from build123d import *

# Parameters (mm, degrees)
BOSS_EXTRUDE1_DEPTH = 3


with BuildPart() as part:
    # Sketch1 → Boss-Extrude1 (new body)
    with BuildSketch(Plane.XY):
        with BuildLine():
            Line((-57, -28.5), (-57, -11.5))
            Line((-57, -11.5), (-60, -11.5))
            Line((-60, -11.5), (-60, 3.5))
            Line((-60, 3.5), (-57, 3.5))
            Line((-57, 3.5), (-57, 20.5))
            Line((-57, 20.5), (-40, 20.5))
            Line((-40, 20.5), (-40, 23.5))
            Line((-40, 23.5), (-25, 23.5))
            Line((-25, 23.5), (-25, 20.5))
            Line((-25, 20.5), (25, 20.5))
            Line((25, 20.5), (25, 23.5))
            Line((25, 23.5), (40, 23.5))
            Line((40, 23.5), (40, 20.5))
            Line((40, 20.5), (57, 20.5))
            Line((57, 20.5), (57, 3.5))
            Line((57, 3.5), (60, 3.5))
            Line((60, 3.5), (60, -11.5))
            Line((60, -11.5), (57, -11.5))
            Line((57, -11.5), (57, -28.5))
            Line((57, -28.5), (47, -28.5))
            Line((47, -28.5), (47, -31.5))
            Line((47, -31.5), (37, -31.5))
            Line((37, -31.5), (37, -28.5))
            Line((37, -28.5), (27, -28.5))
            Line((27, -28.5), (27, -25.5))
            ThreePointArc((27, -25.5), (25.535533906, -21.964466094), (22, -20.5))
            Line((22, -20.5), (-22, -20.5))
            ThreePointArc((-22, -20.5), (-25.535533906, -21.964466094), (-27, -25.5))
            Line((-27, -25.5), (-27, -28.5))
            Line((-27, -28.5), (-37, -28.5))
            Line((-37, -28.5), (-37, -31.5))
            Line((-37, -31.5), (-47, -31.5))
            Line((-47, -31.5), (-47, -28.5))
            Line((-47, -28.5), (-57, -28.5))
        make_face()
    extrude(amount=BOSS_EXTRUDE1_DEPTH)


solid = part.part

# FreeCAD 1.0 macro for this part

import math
import FreeCAD as App
import Part
import Sketcher

doc = App.newDocument("Part")
body = doc.addObject("PartDesign::Body", "Body")

# Sketch on XY plane
sketch1 = doc.addObject("Sketcher::SketchObject", "Sketch")
body.addObject(sketch1)
sketch1.AttachmentSupport = (doc.XY_Plane, [""])
sketch1.MapMode = "FlatFace"
sketch1.addGeometry([
    Part.LineSegment(App.Vector(-57, -11.5, 0), App.Vector(-57, -28.5, 0)),  # 0
    Part.LineSegment(App.Vector(-57, -28.5, 0), App.Vector(-47, -28.5, 0)),  # 1
    Part.LineSegment(App.Vector(-47, -28.5, 0), App.Vector(-47, -31.5, 0)),  # 2
    Part.LineSegment(App.Vector(-47, -31.5, 0), App.Vector(-37, -31.5, 0)),  # 3
    Part.LineSegment(App.Vector(-37, -31.5, 0), App.Vector(-37, -28.5, 0)),  # 4
    Part.LineSegment(App.Vector(-37, -28.5, 0), App.Vector(-27, -28.5, 0)),  # 5
    Part.LineSegment(App.Vector(-27, -28.5, 0), App.Vector(-27, -25.5, 0)),  # 6
    Part.ArcOfCircle(Part.Circle(App.Vector(-22, -25.5, 0), App.Vector(0, 0, 1), 5), math.radians(90), math.radians(180)),  # 7
    Part.LineSegment(App.Vector(-22, -20.5, 0), App.Vector(22, -20.5, 0)),  # 8
    Part.ArcOfCircle(Part.Circle(App.Vector(22, -25.5, 0), App.Vector(0, 0, 1), 5), math.radians(0), math.radians(90)),  # 9
    Part.LineSegment(App.Vector(27, -25.5, 0), App.Vector(27, -28.5, 0)),  # 10
    Part.LineSegment(App.Vector(27, -28.5, 0), App.Vector(37, -28.5, 0)),  # 11
    Part.LineSegment(App.Vector(37, -28.5, 0), App.Vector(37, -31.5, 0)),  # 12
    Part.LineSegment(App.Vector(37, -31.5, 0), App.Vector(47, -31.5, 0)),  # 13
    Part.LineSegment(App.Vector(47, -31.5, 0), App.Vector(47, -28.5, 0)),  # 14
    Part.LineSegment(App.Vector(47, -28.5, 0), App.Vector(57, -28.5, 0)),  # 15
    Part.LineSegment(App.Vector(57, -28.5, 0), App.Vector(57, -11.5, 0)),  # 16
    Part.LineSegment(App.Vector(57, -11.5, 0), App.Vector(60, -11.5, 0)),  # 17
    Part.LineSegment(App.Vector(60, -11.5, 0), App.Vector(60, 3.5, 0)),  # 18
    Part.LineSegment(App.Vector(60, 3.5, 0), App.Vector(57, 3.5, 0)),  # 19
    Part.LineSegment(App.Vector(57, 3.5, 0), App.Vector(57, 20.5, 0)),  # 20
    Part.LineSegment(App.Vector(57, 20.5, 0), App.Vector(40, 20.5, 0)),  # 21
    Part.LineSegment(App.Vector(40, 20.5, 0), App.Vector(40, 23.5, 0)),  # 22
    Part.LineSegment(App.Vector(40, 23.5, 0), App.Vector(25, 23.5, 0)),  # 23
    Part.LineSegment(App.Vector(25, 23.5, 0), App.Vector(25, 20.5, 0)),  # 24
    Part.LineSegment(App.Vector(25, 20.5, 0), App.Vector(-25, 20.5, 0)),  # 25
    Part.LineSegment(App.Vector(-25, 20.5, 0), App.Vector(-25, 23.5, 0)),  # 26
    Part.LineSegment(App.Vector(-25, 23.5, 0), App.Vector(-40, 23.5, 0)),  # 27
    Part.LineSegment(App.Vector(-40, 23.5, 0), App.Vector(-40, 20.5, 0)),  # 28
    Part.LineSegment(App.Vector(-40, 20.5, 0), App.Vector(-57, 20.5, 0)),  # 29
    Part.LineSegment(App.Vector(-57, 20.5, 0), App.Vector(-57, 3.5, 0)),  # 30
    Part.LineSegment(App.Vector(-57, 3.5, 0), App.Vector(-60, 3.5, 0)),  # 31
    Part.LineSegment(App.Vector(-60, 3.5, 0), App.Vector(-60, -11.5, 0)),  # 32
    Part.LineSegment(App.Vector(-60, -11.5, 0), App.Vector(-57, -11.5, 0)),  # 33
], False)
sketch1.addConstraint([
    Sketcher.Constraint("Coincident", 0, 2, 1, 1),
    Sketcher.Constraint("Coincident", 1, 2, 2, 1),
    Sketcher.Constraint("Coincident", 2, 2, 3, 1),
    Sketcher.Constraint("Coincident", 3, 2, 4, 1),
    Sketcher.Constraint("Coincident", 4, 2, 5, 1),
    Sketcher.Constraint("Coincident", 5, 2, 6, 1),
    Sketcher.Constraint("Tangent", 6, 2, 7, 2),
    Sketcher.Constraint("Tangent", 7, 1, 8, 1),
    Sketcher.Constraint("Tangent", 8, 2, 9, 2),
    Sketcher.Constraint("Tangent", 9, 1, 10, 1),
    Sketcher.Constraint("Coincident", 10, 2, 11, 1),
    Sketcher.Constraint("Coincident", 11, 2, 12, 1),
    Sketcher.Constraint("Coincident", 12, 2, 13, 1),
    Sketcher.Constraint("Coincident", 13, 2, 14, 1),
    Sketcher.Constraint("Coincident", 14, 2, 15, 1),
    Sketcher.Constraint("Coincident", 15, 2, 16, 1),
    Sketcher.Constraint("Coincident", 16, 2, 17, 1),
    Sketcher.Constraint("Coincident", 17, 2, 18, 1),
    Sketcher.Constraint("Coincident", 18, 2, 19, 1),
    Sketcher.Constraint("Coincident", 19, 2, 20, 1),
    Sketcher.Constraint("Coincident", 20, 2, 21, 1),
    Sketcher.Constraint("Coincident", 21, 2, 22, 1),
    Sketcher.Constraint("Coincident", 22, 2, 23, 1),
    Sketcher.Constraint("Coincident", 23, 2, 24, 1),
    Sketcher.Constraint("Coincident", 24, 2, 25, 1),
    Sketcher.Constraint("Coincident", 25, 2, 26, 1),
    Sketcher.Constraint("Coincident", 26, 2, 27, 1),
    Sketcher.Constraint("Coincident", 27, 2, 28, 1),
    Sketcher.Constraint("Coincident", 28, 2, 29, 1),
    Sketcher.Constraint("Coincident", 29, 2, 30, 1),
    Sketcher.Constraint("Coincident", 30, 2, 31, 1),
    Sketcher.Constraint("Coincident", 31, 2, 32, 1),
    Sketcher.Constraint("Coincident", 32, 2, 33, 1),
    Sketcher.Constraint("Coincident", 33, 2, 0, 1),
    Sketcher.Constraint("Vertical", 0),
    Sketcher.Constraint("Horizontal", 1),
    Sketcher.Constraint("Vertical", 2),
    Sketcher.Constraint("Horizontal", 3),
    Sketcher.Constraint("Vertical", 4),
    Sketcher.Constraint("Horizontal", 5),
    Sketcher.Constraint("Vertical", 6),
    Sketcher.Constraint("Horizontal", 8),
    Sketcher.Constraint("Vertical", 10),
    Sketcher.Constraint("Horizontal", 11),
    Sketcher.Constraint("Vertical", 12),
    Sketcher.Constraint("Horizontal", 13),
    Sketcher.Constraint("Vertical", 14),
    Sketcher.Constraint("Horizontal", 15),
    Sketcher.Constraint("Vertical", 16),
    Sketcher.Constraint("Horizontal", 17),
    Sketcher.Constraint("Vertical", 18),
    Sketcher.Constraint("Horizontal", 19),
    Sketcher.Constraint("Vertical", 20),
    Sketcher.Constraint("Horizontal", 21),
    Sketcher.Constraint("Vertical", 22),
    Sketcher.Constraint("Horizontal", 23),
    Sketcher.Constraint("Vertical", 24),
    Sketcher.Constraint("Horizontal", 25),
    Sketcher.Constraint("Vertical", 26),
    Sketcher.Constraint("Horizontal", 27),
    Sketcher.Constraint("Vertical", 28),
    Sketcher.Constraint("Horizontal", 29),
    Sketcher.Constraint("Vertical", 30),
    Sketcher.Constraint("Horizontal", 31),
    Sketcher.Constraint("Vertical", 32),
    Sketcher.Constraint("Horizontal", 33),
    Sketcher.Constraint("Equal", 7, 9),
    Sketcher.Constraint("Symmetric", 5, 2, 10, 2, -2),
    Sketcher.Constraint("Symmetric", 3, 2, 12, 2, -2),
    Sketcher.Constraint("Symmetric", 1, 2, 14, 2, -2),
    Sketcher.Constraint("Symmetric", 23, 2, 26, 2, -2),
    Sketcher.Constraint("Symmetric", 21, 2, 28, 2, -2),
    Sketcher.Constraint("Symmetric", 19, 2, 30, 2, -2),
    Sketcher.Constraint("Symmetric", 17, 2, 32, 2, -2),
    Sketcher.Constraint("Horizontal", 1, 2, 4, 2),
    Sketcher.Constraint("Horizontal", 21, 2, 24, 2),
    Sketcher.Constraint("Vertical", 16, 2, 19, 2),
    Sketcher.Constraint("Vertical", 0, 2, 29, 2),
    Sketcher.Constraint("Equal", 1, 3),
    Sketcher.Constraint("Equal", 3, 5),
    Sketcher.Constraint("Equal", 29, 0),
    Sketcher.Constraint("Equal", 33, 2),
    Sketcher.Constraint("Equal", 4, 6),
    Sketcher.Constraint("Equal", 27, 18),
    Sketcher.Constraint("Equal", 16, 20),
    Sketcher.Constraint("Equal", 14, 22),
    Sketcher.Constraint("Radius", 7, 5.0),
    Sketcher.Constraint("DistanceX", 1, 1, 1, 2, 10.0),
    Sketcher.Constraint("DistanceX", 8, 1, 8, 2, 44.0),
    Sketcher.Constraint("DistanceX", 17, 1, 17, 2, 3.0),
    Sketcher.Constraint("DistanceX", 21, 2, 21, 1, 17.0),
    Sketcher.Constraint("DistanceX", 23, 2, 23, 1, 15.0),
    Sketcher.Constraint("DistanceY", 7, 3, -1, 1, 25.5),
])
pad1 = doc.addObject("PartDesign::Pad", "Pad")
body.addObject(pad1)
pad1.Profile = sketch1
pad1.Length = 3

doc.recompute()
